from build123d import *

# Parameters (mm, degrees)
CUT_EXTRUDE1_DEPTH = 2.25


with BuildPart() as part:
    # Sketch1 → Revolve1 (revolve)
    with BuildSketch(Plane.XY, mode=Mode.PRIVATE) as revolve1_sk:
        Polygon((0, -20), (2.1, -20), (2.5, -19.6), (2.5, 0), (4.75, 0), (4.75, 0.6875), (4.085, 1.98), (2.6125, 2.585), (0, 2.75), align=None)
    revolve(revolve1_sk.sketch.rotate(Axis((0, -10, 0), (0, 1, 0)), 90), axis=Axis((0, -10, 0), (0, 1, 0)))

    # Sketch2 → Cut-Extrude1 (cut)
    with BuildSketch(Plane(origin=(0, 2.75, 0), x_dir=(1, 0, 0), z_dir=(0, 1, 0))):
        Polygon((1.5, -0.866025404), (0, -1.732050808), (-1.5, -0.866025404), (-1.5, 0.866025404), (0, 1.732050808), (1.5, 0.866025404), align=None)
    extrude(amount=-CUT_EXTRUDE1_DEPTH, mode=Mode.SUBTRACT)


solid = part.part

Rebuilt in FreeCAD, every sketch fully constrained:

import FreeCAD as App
import Part
import Sketcher
from FreeCAD import Vector
Q = App.Units.Quantity


def add_polygon(sketch, points):
    """Adds a closed chain of lines whose ends are joined by coincident constraints."""
    first, n = sketch.GeometryCount, len(points)
    for a, b in zip(points, points[1:] + points[:1]):
        sketch.addGeometry(Part.LineSegment(App.Vector(*a, 0), App.Vector(*b, 0)), False)
    for i in range(n):
        sketch.addConstraint(Sketcher.Constraint("Coincident", first + i, 2, first + (i + 1) % n, 1))

doc = App.newDocument("Part")
body = doc.addObject("PartDesign::Body", "Body")

sketch1 = body.newObject("Sketcher::SketchObject", "Sketch")
sketch1.AttachmentSupport = (doc.getObject("XY_Plane"), [""])
sketch1.MapMode = "FlatFace"
add_polygon(sketch1, [(0, -20), (2.1, -20), (2.5, -19.6), (2.5, 0), (4.8, 0), (4.8, 0.7), (4.1, 2), (2.6, 2.6), (0, 2.8)])
sketch1.addConstraint(Sketcher.Constraint("Horizontal", 0))
sketch1.addConstraint(Sketcher.Constraint("Vertical", 2))
sketch1.addConstraint(Sketcher.Constraint("Horizontal", 3))
sketch1.addConstraint(Sketcher.Constraint("Vertical", 4))
sketch1.addConstraint(Sketcher.Constraint("Vertical", 8))
sketch1.addConstraint(Sketcher.Constraint("PointOnObject", 2, 2, -1))
sketch1.addConstraint(Sketcher.Constraint("PointOnObject", 7, 2, -2))
sketch1.addConstraint(Sketcher.Constraint("Angle", 1, Q("45 deg")))
sketch1.addConstraint(Sketcher.Constraint("DistanceX", 0, 1, 0, 2, Q("2.1 mm")))
sketch1.addConstraint(Sketcher.Constraint("DistanceY", 2, 1, 2, 2, Q("19.6 mm")))
sketch1.addConstraint(Sketcher.Constraint("DistanceY", 0, 2, -1, 1, Q("20 mm")))
sketch1.addConstraint(Sketcher.Constraint("DistanceX", 3, 1, 3, 2, Q("2.25 mm")))
sketch1.addConstraint(Sketcher.Constraint("DistanceY", 8, 2, 8, 1, Q("22.75 mm")))
sketch1.addConstraint(Sketcher.Constraint("DistanceY", -1, 1, 5, 2, Q("1.98 mm")))
sketch1.addConstraint(Sketcher.Constraint("DistanceY", 4, 1, 4, 2, Q("0.6875 mm")))
sketch1.addConstraint(Sketcher.Constraint("DistanceX", -1, 1, 5, 2, Q("4.085 mm")))
sketch1.addConstraint(Sketcher.Constraint("DistanceY", -1, 1, 6, 2, Q("2.585 mm")))
sketch1.addConstraint(Sketcher.Constraint("DistanceX", -1, 1, 6, 2, Q("2.6125 mm")))
revolution = body.newObject("PartDesign::Revolution", "Revolution")
revolution.Profile = sketch1
revolution.ReferenceAxis = (sketch1, ["V_Axis"])
revolution.Angle = 360

sketch2 = body.newObject("Sketcher::SketchObject", "Sketch001")
sketch2.AttachmentSupport = (doc.getObject("XZ_Plane"), [""])
sketch2.MapMode = "FlatFace"
sketch2.AttachmentOffset = App.Placement(Vector(0, 0, -2.75), App.Rotation())
add_polygon(sketch2, [(0, 1.7), (1.5, 0.9), (1.5, -0.9), (0, -1.7), (-1.5, -0.9), (-1.5, 0.9)])
sketch2.addConstraint(Sketcher.Constraint("Vertical", 1))
sketch2.addConstraint(Sketcher.Constraint("Vertical", 4))
sketch2.addConstraint(Sketcher.Constraint("Symmetric", 0, 2, 3, 2, -1, 1))
sketch2.addConstraint(Sketcher.Constraint("Symmetric", 2, 2, 5, 2, -1, 1))
sketch2.addConstraint(Sketcher.Constraint("PointOnObject", 2, 2, -2))
sketch2.addConstraint(Sketcher.Constraint("Parallel", 2, 5))
sketch2.addConstraint(Sketcher.Constraint("Horizontal", 1, 2, 3, 2))
sketch2.addConstraint(Sketcher.Constraint("Angle", 0, Q("-30 deg")))
sketch2.addConstraint(Sketcher.Constraint("DistanceX", 3, 2, 1, 2, Q("3 mm")))
sketch2.addConstraint(Sketcher.Constraint("DistanceY", 1, 2, 1, 1, Q("1.732051 mm")))
pocket1 = body.newObject("PartDesign::Pocket", "Pocket")
pocket1.Profile = sketch2
pocket1.Length = 2.25
pocket1.Reversed = True

doc.recompute()
